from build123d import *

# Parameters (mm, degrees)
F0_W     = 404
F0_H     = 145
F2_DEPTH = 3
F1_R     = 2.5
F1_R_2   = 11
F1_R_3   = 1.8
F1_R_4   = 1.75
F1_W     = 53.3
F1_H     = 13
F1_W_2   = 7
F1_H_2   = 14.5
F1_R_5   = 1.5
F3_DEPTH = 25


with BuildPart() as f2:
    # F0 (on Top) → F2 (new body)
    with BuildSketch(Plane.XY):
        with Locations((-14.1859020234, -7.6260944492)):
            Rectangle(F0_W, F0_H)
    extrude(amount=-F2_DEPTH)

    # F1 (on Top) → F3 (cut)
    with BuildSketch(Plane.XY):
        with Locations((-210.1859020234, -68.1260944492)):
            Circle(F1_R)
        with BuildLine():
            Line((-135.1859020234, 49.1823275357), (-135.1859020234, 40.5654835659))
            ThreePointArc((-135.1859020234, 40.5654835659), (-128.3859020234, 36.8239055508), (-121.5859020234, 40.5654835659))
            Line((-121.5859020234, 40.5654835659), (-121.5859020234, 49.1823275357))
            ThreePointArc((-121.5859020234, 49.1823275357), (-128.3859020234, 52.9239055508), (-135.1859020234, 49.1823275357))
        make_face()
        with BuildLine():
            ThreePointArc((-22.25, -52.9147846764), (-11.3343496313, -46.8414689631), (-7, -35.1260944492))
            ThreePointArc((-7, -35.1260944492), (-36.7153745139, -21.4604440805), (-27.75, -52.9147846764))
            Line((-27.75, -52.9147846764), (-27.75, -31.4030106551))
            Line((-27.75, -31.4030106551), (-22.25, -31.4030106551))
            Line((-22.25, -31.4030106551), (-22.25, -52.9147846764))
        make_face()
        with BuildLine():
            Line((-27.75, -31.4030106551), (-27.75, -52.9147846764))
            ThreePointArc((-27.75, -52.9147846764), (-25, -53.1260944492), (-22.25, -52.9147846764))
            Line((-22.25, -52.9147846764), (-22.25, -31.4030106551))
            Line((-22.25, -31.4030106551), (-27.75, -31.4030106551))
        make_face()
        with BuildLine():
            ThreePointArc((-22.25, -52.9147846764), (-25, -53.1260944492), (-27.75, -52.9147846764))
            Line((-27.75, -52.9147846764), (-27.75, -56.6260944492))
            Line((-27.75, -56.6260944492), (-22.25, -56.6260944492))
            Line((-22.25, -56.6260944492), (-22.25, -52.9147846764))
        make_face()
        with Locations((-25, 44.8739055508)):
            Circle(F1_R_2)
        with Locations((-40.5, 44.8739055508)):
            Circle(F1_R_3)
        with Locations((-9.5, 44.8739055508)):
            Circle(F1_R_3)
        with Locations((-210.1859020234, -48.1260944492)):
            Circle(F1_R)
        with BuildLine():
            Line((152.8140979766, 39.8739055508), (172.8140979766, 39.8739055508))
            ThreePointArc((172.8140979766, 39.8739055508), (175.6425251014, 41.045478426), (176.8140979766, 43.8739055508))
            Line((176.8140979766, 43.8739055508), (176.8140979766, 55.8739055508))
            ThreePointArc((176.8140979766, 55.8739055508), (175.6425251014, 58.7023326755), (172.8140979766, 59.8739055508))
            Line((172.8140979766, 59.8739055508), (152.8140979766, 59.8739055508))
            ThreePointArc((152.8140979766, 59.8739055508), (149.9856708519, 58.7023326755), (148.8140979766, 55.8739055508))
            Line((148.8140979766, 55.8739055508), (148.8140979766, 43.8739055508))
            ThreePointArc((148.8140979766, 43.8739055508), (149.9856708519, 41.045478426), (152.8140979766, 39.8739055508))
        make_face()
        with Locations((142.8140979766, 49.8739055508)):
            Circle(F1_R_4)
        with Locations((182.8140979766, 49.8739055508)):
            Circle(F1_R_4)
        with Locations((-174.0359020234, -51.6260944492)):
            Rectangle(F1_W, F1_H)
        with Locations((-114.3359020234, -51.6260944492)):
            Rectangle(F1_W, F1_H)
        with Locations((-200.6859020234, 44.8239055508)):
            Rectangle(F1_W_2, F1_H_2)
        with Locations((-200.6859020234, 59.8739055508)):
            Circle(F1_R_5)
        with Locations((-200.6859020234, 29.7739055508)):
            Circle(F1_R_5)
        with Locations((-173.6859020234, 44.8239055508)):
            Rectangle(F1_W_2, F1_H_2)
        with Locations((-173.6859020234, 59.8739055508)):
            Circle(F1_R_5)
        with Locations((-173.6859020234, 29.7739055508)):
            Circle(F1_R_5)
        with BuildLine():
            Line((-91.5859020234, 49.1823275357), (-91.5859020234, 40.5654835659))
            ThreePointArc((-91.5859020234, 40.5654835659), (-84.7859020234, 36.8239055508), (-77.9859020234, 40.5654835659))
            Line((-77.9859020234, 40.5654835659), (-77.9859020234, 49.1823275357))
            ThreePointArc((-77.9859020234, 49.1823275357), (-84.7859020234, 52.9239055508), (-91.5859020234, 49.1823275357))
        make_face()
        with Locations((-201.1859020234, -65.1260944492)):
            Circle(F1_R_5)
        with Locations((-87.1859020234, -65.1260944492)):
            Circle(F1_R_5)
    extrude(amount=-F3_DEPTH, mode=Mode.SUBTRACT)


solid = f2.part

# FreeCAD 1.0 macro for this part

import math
import FreeCAD as App
import Part
import Sketcher

doc = App.newDocument("Part")
body = doc.addObject("PartDesign::Body", "Body")

sketch1 = body.newObject("Sketcher::SketchObject", "Sketch")
sketch1.AttachmentSupport = (doc.getObject("XY_Plane"), [""])
sketch1.MapMode = "FlatFace"
sketch1.addGeometry(Part.LineSegment(App.Vector(-216.185902, 64.873906, 0), App.Vector(-216.185902, -80.126094, 0)), False)
sketch1.addGeometry(Part.LineSegment(App.Vector(-216.185902, -80.126094, 0), App.Vector(187.814098, -80.126094, 0)), False)
sketch1.addGeometry(Part.LineSegment(App.Vector(187.814098, -80.126094, 0), App.Vector(187.814098, 64.873906, 0)), False)
sketch1.addGeometry(Part.LineSegment(App.Vector(187.814098, 64.873906, 0), App.Vector(-216.185902, 64.873906, 0)), False)
sketch1.addConstraint(Sketcher.Constraint("Coincident", 0, 2, 1, 1))
sketch1.addConstraint(Sketcher.Constraint("Coincident", 1, 2, 2, 1))
sketch1.addConstraint(Sketcher.Constraint("Coincident", 2, 2, 3, 1))
sketch1.addConstraint(Sketcher.Constraint("Coincident", 3, 2, 0, 1))
sketch1.addConstraint(Sketcher.Constraint("Vertical", 0))
sketch1.addConstraint(Sketcher.Constraint("Horizontal", 1))
sketch1.addConstraint(Sketcher.Constraint("Vertical", 2))
sketch1.addConstraint(Sketcher.Constraint("Horizontal", 3))
sketch1.addConstraint(Sketcher.Constraint("DistanceX", 1, 1, 1, 2, 404.0))
sketch1.addConstraint(Sketcher.Constraint("DistanceY", 0, 2, 0, 1, 145.0))
sketch1.addConstraint(Sketcher.Constraint("DistanceX", 0, 2, -1, 1, 216.185902))
sketch1.addConstraint(Sketcher.Constraint("DistanceY", 0, 2, -1, 1, 80.126094))
pad1 = body.newObject("PartDesign::Pad", "Pad")
pad1.Profile = sketch1
pad1.Length = 3
pad1.Reversed = True

sketch2 = body.newObject("Sketcher::SketchObject", "Sketch001")
sketch2.AttachmentSupport = (doc.getObject("XY_Plane"), [""])
sketch2.MapMode = "FlatFace"
sketch2.addGeometry(Part.Circle(App.Vector(-210.185902, -68.126094, 0), App.Vector(0, 0, 1), 2.5), False)
sketch2.addGeometry(Part.LineSegment(App.Vector(-135.185902, 49.182328, 0), App.Vector(-135.185902, 40.565484, 0)), False)
sketch2.addGeometry(Part.ArcOfCircle(Part.Circle(App.Vector(-128.385902, 44.873906, 0), App.Vector(0, 0, 1), 8.05), math.radians(-147.642002), math.radians(-32.357998)), False)
sketch2.addGeometry(Part.LineSegment(App.Vector(-121.585902, 40.565484, 0), App.Vector(-121.585902, 49.182328, 0)), False)
sketch2.addGeometry(Part.ArcOfCircle(Part.Circle(App.Vector(-128.385902, 44.873906, 0), App.Vector(0, 0, 1), 8.05), math.radians(32.357998), math.radians(147.642002)), False)
sketch2.addGeometry(Part.ArcOfCircle(Part.Circle(App.Vector(-25, -35.126094, 0), App.Vector(0, 0, 1), 18), math.radians(-81.212063), math.radians(0)), False)
sketch2.addGeometry(Part.ArcOfCircle(Part.Circle(App.Vector(-25, -35.126094, 0), App.Vector(0, 0, 1), 18), math.radians(0), math.radians(261.212063)), False)
sketch2.addGeometry(Part.LineSegment(App.Vector(-27.75, -52.914785, 0), App.Vector(-27.75, -56.626094, 0)), False)
sketch2.addGeometry(Part.LineSegment(App.Vector(-27.75, -56.626094, 0), App.Vector(-22.25, -56.626094, 0)), False)
sketch2.addGeometry(Part.LineSegment(App.Vector(-22.25, -56.626094, 0), App.Vector(-22.25, -52.914785, 0)), False)
sketch2.addGeometry(Part.Circle(App.Vector(-25, 44.873906, 0), App.Vector(0, 0, 1), 11), False)
sketch2.addGeometry(Part.Circle(App.Vector(-40.5, 44.873906, 0), App.Vector(0, 0, 1), 1.8), False)
sketch2.addGeometry(Part.Circle(App.Vector(-9.5, 44.873906, 0), App.Vector(0, 0, 1), 1.8), False)
sketch2.addGeometry(Part.Circle(App.Vector(-210.185902, -48.126094, 0), App.Vector(0, 0, 1), 2.5), False)
sketch2.addGeometry(Part.LineSegment(App.Vector(152.814098, 39.873906, 0), App.Vector(172.814098, 39.873906, 0)), False)
sketch2.addGeometry(Part.ArcOfCircle(Part.Circle(App.Vector(172.814098, 43.873906, 0), App.Vector(0, 0, 1), 4), math.radians(-90), math.radians(0)), False)
sketch2.addGeometry(Part.LineSegment(App.Vector(176.814098, 43.873906, 0), App.Vector(176.814098, 55.873906, 0)), False)
sketch2.addGeometry(Part.ArcOfCircle(Part.Circle(App.Vector(172.814098, 55.873906, 0), App.Vector(0, 0, 1), 4), math.radians(0), math.radians(90)), False)
sketch2.addGeometry(Part.LineSegment(App.Vector(172.814098, 59.873906, 0), App.Vector(152.814098, 59.873906, 0)), False)
sketch2.addGeometry(Part.ArcOfCircle(Part.Circle(App.Vector(152.814098, 55.873906, 0), App.Vector(0, 0, 1), 4), math.radians(90), math.radians(180)), False)
sketch2.addGeometry(Part.LineSegment(App.Vector(148.814098, 55.873906, 0), App.Vector(148.814098, 43.873906, 0)), False)
sketch2.addGeometry(Part.ArcOfCircle(Part.Circle(App.Vector(152.814098, 43.873906, 0), App.Vector(0, 0, 1), 4), math.radians(180), math.radians(270)), False)
sketch2.addGeometry(Part.Circle(App.Vector(142.814098, 49.873906, 0), App.Vector(0, 0, 1), 1.75), False)
sketch2.addGeometry(Part.Circle(App.Vector(182.814098, 49.873906, 0), App.Vector(0, 0, 1), 1.75), False)
sketch2.addGeometry(Part.LineSegment(App.Vector(-200.685902, -45.126094, 0), App.Vector(-200.685902, -58.126094, 0)), False)
sketch2.addGeometry(Part.LineSegment(App.Vector(-200.685902, -58.126094, 0), App.Vector(-147.385902, -58.126094, 0)), False)
sketch2.addGeometry(Part.LineSegment(App.Vector(-147.385902, -58.126094, 0), App.Vector(-147.385902, -45.126094, 0)), False)
sketch2.addGeometry(Part.LineSegment(App.Vector(-147.385902, -45.126094, 0), App.Vector(-200.685902, -45.126094, 0)), False)
sketch2.addGeometry(Part.LineSegment(App.Vector(-140.985902, -45.126094, 0), App.Vector(-140.985902, -58.126094, 0)), False)
sketch2.addGeometry(Part.LineSegment(App.Vector(-140.985902, -58.126094, 0), App.Vector(-87.685902, -58.126094, 0)), False)
sketch2.addGeometry(Part.LineSegment(App.Vector(-87.685902, -58.126094, 0), App.Vector(-87.685902, -45.126094, 0)), False)
sketch2.addGeometry(Part.LineSegment(App.Vector(-87.685902, -45.126094, 0), App.Vector(-140.985902, -45.126094, 0)), False)
sketch2.addGeometry(Part.LineSegment(App.Vector(-204.185902, 52.073906, 0), App.Vector(-204.185902, 37.573906, 0)), False)
sketch2.addGeometry(Part.LineSegment(App.Vector(-204.185902, 37.573906, 0), App.Vector(-197.185902, 37.573906, 0)), False)
sketch2.addGeometry(Part.LineSegment(App.Vector(-197.185902, 37.573906, 0), App.Vector(-197.185902, 52.073906, 0)), False)
sketch2.addGeometry(Part.LineSegment(App.Vector(-197.185902, 52.073906, 0), App.Vector(-204.185902, 52.073906, 0)), False)
sketch2.addGeometry(Part.Circle(App.Vector(-200.685902, 59.873906, 0), App.Vector(0, 0, 1), 1.5), False)
sketch2.addGeometry(Part.Circle(App.Vector(-200.685902, 29.773906, 0), App.Vector(0, 0, 1), 1.5), False)
sketch2.addGeometry(Part.LineSegment(App.Vector(-177.185902, 52.073906, 0), App.Vector(-177.185902, 37.573906, 0)), False)
sketch2.addGeometry(Part.LineSegment(App.Vector(-177.185902, 37.573906, 0), App.Vector(-170.185902, 37.573906, 0)), False)
sketch2.addGeometry(Part.LineSegment(App.Vector(-170.185902, 37.573906, 0), App.Vector(-170.185902, 52.073906, 0)), False)
sketch2.addGeometry(Part.LineSegment(App.Vector(-170.185902, 52.073906, 0), App.Vector(-177.185902, 52.073906, 0)), False)
sketch2.addGeometry(Part.Circle(App.Vector(-173.685902, 59.873906, 0), App.Vector(0, 0, 1), 1.5), False)
sketch2.addGeometry(Part.Circle(App.Vector(-173.685902, 29.773906, 0), App.Vector(0, 0, 1), 1.5), False)
sketch2.addGeometry(Part.LineSegment(App.Vector(-91.585902, 49.182328, 0), App.Vector(-91.585902, 40.565484, 0)), False)
sketch2.addGeometry(Part.ArcOfCircle(Part.Circle(App.Vector(-84.785902, 44.873906, 0), App.Vector(0, 0, 1), 8.05), math.radians(-147.642002), math.radians(-32.357998)), False)
sketch2.addGeometry(Part.LineSegment(App.Vector(-77.985902, 40.565484, 0), App.Vector(-77.985902, 49.182328, 0)), False)
sketch2.addGeometry(Part.ArcOfCircle(Part.Circle(App.Vector(-84.785902, 44.873906, 0), App.Vector(0, 0, 1), 8.05), math.radians(32.357998), math.radians(147.642002)), False)
sketch2.addGeometry(Part.Circle(App.Vector(-201.185902, -65.126094, 0), App.Vector(0, 0, 1), 1.5), False)
sketch2.addGeometry(Part.Circle(App.Vector(-87.185902, -65.126094, 0), App.Vector(0, 0, 1), 1.5), False)
sketch2.addConstraint(Sketcher.Constraint("Coincident", 1, 2, 2, 1))
sketch2.addConstraint(Sketcher.Constraint("Coincident", 2, 2, 3, 1))
sketch2.addConstraint(Sketcher.Constraint("Coincident", 3, 2, 4, 1))
sketch2.addConstraint(Sketcher.Constraint("Coincident", 4, 2, 1, 1))
sketch2.addConstraint(Sketcher.Constraint("Tangent", 5, 2, 6, 1))
sketch2.addConstraint(Sketcher.Constraint("Coincident", 6, 2, 7, 1))
sketch2.addConstraint(Sketcher.Constraint("Coincident", 7, 2, 8, 1))
sketch2.addConstraint(Sketcher.Constraint("Coincident", 8, 2, 9, 1))
sketch2.addConstraint(Sketcher.Constraint("Coincident", 9, 2, 5, 1))
sketch2.addConstraint(Sketcher.Constraint("Tangent", 14, 2, 15, 1))
sketch2.addConstraint(Sketcher.Constraint("Tangent", 15, 2, 16, 1))
sketch2.addConstraint(Sketcher.Constraint("Tangent", 16, 2, 17, 1))
sketch2.addConstraint(Sketcher.Constraint("Tangent", 17, 2, 18, 1))
sketch2.addConstraint(Sketcher.Constraint("Tangent", 18, 2, 19, 1))
sketch2.addConstraint(Sketcher.Constraint("Tangent", 19, 2, 20, 1))
sketch2.addConstraint(Sketcher.Constraint("Tangent", 20, 2, 21, 1))
sketch2.addConstraint(Sketcher.Constraint("Tangent", 21, 2, 14, 1))
sketch2.addConstraint(Sketcher.Constraint("Coincident", 24, 2, 25, 1))
sketch2.addConstraint(Sketcher.Constraint("Coincident", 25, 2, 26, 1))
sketch2.addConstraint(Sketcher.Constraint("Coincident", 26, 2, 27, 1))
sketch2.addConstraint(Sketcher.Constraint("Coincident", 27, 2, 24, 1))
sketch2.addConstraint(Sketcher.Constraint("Coincident", 28, 2, 29, 1))
sketch2.addConstraint(Sketcher.Constraint("Coincident", 29, 2, 30, 1))
sketch2.addConstraint(Sketcher.Constraint("Coincident", 30, 2, 31, 1))
sketch2.addConstraint(Sketcher.Constraint("Coincident", 31, 2, 28, 1))
sketch2.addConstraint(Sketcher.Constraint("Coincident", 32, 2, 33, 1))
sketch2.addConstraint(Sketcher.Constraint("Coincident", 33, 2, 34, 1))
sketch2.addConstraint(Sketcher.Constraint("Coincident", 34, 2, 35, 1))
sketch2.addConstraint(Sketcher.Constraint("Coincident", 35, 2, 32, 1))
sketch2.addConstraint(Sketcher.Constraint("Coincident", 38, 2, 39, 1))
sketch2.addConstraint(Sketcher.Constraint("Coincident", 39, 2, 40, 1))
sketch2.addConstraint(Sketcher.Constraint("Coincident", 40, 2, 41, 1))
sketch2.addConstraint(Sketcher.Constraint("Coincident", 41, 2, 38, 1))
sketch2.addConstraint(Sketcher.Constraint("Coincident", 44, 2, 45, 1))
sketch2.addConstraint(Sketcher.Constraint("Coincident", 45, 2, 46, 1))
sketch2.addConstraint(Sketcher.Constraint("Coincident", 46, 2, 47, 1))
sketch2.addConstraint(Sketcher.Constraint("Coincident", 47, 2, 44, 1))
sketch2.addConstraint(Sketcher.Constraint("Vertical", 1))
sketch2.addConstraint(Sketcher.Constraint("Vertical", 3))
sketch2.addConstraint(Sketcher.Constraint("Vertical", 7))
sketch2.addConstraint(Sketcher.Constraint("Horizontal", 8))
sketch2.addConstraint(Sketcher.Constraint("Vertical", 9))
sketch2.addConstraint(Sketcher.Constraint("Horizontal", 14))
sketch2.addConstraint(Sketcher.Constraint("Vertical", 16))
sketch2.addConstraint(Sketcher.Constraint("Horizontal", 18))
sketch2.addConstraint(Sketcher.Constraint("Vertical", 20))
sketch2.addConstraint(Sketcher.Constraint("Vertical", 24))
sketch2.addConstraint(Sketcher.Constraint("Horizontal", 25))
sketch2.addConstraint(Sketcher.Constraint("Vertical", 26))
sketch2.addConstraint(Sketcher.Constraint("Horizontal", 27))
sketch2.addConstraint(Sketcher.Constraint("Vertical", 28))
sketch2.addConstraint(Sketcher.Constraint("Horizontal", 29))
sketch2.addConstraint(Sketcher.Constraint("Vertical", 30))
sketch2.addConstraint(Sketcher.Constraint("Horizontal", 31))
sketch2.addConstraint(Sketcher.Constraint("Vertical", 32))
sketch2.addConstraint(Sketcher.Constraint("Horizontal", 33))
sketch2.addConstraint(Sketcher.Constraint("Vertical", 34))
sketch2.addConstraint(Sketcher.Constraint("Horizontal", 35))
sketch2.addConstraint(Sketcher.Constraint("Vertical", 38))
sketch2.addConstraint(Sketcher.Constraint("Horizontal", 39))
sketch2.addConstraint(Sketcher.Constraint("Vertical", 40))
sketch2.addConstraint(Sketcher.Constraint("Horizontal", 41))
sketch2.addConstraint(Sketcher.Constraint("Vertical", 44))
sketch2.addConstraint(Sketcher.Constraint("Vertical", 46))
sketch2.addConstraint(Sketcher.Constraint("Coincident", 4, 3, 2, 3))
sketch2.addConstraint(Sketcher.Constraint("Coincident", 47, 3, 45, 3))
sketch2.addConstraint(Sketcher.Constraint("Equal", 2, 4))
sketch2.addConstraint(Sketcher.Constraint("Equal", 5, 6))
sketch2.addConstraint(Sketcher.Constraint("Equal", 11, 12))
sketch2.addConstraint(Sketcher.Constraint("Equal", 0, 13))
sketch2.addConstraint(Sketcher.Constraint("Equal", 15, 17))
sketch2.addConstraint(Sketcher.Constraint("Equal", 17, 19))
sketch2.addConstraint(Sketcher.Constraint("Equal", 19, 21))
sketch2.addConstraint(Sketcher.Constraint("Equal", 22, 23))
sketch2.addConstraint(Sketcher.Constraint("Equal", 36, 37))
sketch2.addConstraint(Sketcher.Constraint("Equal", 37, 42))
sketch2.addConstraint(Sketcher.Constraint("Equal", 42, 43))
sketch2.addConstraint(Sketcher.Constraint("Equal", 4, 45))
sketch2.addConstraint(Sketcher.Constraint("Equal", 45, 47))
sketch2.addConstraint(Sketcher.Constraint("Equal", 43, 48))
sketch2.addConstraint(Sketcher.Constraint("Equal", 48, 49))
sketch2.addConstraint(Sketcher.Constraint("Horizontal", 4, 3, 10, 3))
sketch2.addConstraint(Sketcher.Constraint("Horizontal", 10, 3, 11, 3))
sketch2.addConstraint(Sketcher.Constraint("Horizontal", 11, 3, 12, 3))
sketch2.addConstraint(Sketcher.Constraint("Horizontal", 22, 3, 23, 3))
sketch2.addConstraint(Sketcher.Constraint("Horizontal", 36, 3, 42, 3))
sketch2.addConstraint(Sketcher.Constraint("Horizontal", 37, 3, 43, 3))
sketch2.addConstraint(Sketcher.Constraint("Horizontal", 12, 3, 45, 3))
sketch2.addConstraint(Sketcher.Constraint("Horizontal", 48, 3, 49, 3))
sketch2.addConstraint(Sketcher.Constraint("Horizontal", 1, 2, 2, 2))
sketch2.addConstraint(Sketcher.Constraint("Horizontal", 6, 3, 5, 2))
sketch2.addConstraint(Sketcher.Constraint("Horizontal", 6, 2, 9, 2))
sketch2.addConstraint(Sketcher.Constraint("Horizontal", 42, 3, 17, 2))
sketch2.addConstraint(Sketcher.Constraint("Horizontal", 25, 2, 28, 2))
sketch2.addConstraint(Sketcher.Constraint("Horizontal", 27, 2, 30, 2))
sketch2.addConstraint(Sketcher.Constraint("Horizontal", 33, 2, 38, 2))
sketch2.addConstraint(Sketcher.Constraint("Horizontal", 35, 2, 40, 2))
sketch2.addConstraint(Sketcher.Constraint("Horizontal", 2, 2, 44, 2))
sketch2.addConstraint(Sketcher.Constraint("Horizontal", 44, 2, 45, 2))
sketch2.addConstraint(Sketcher.Constraint("Vertical", 6, 3, 10, 3))
sketch2.addConstraint(Sketcher.Constraint("Vertical", 0, 3, 13, 3))
sketch2.addConstraint(Sketcher.Constraint("Vertical", 36, 3, 37, 3))
sketch2.addConstraint(Sketcher.Constraint("Vertical", 42, 3, 43, 3))
sketch2.addConstraint(Sketcher.Constraint("Vertical", 37, 3, 24, 2))
sketch2.addConstraint(Sketcher.Constraint("Equal", 27, 29))
sketch2.addConstraint(Sketcher.Constraint("Equal", 35, 39))
sketch2.addConstraint(Sketcher.Constraint("Diameter", 0, 5.0))
sketch2.addConstraint(Sketcher.Constraint("Diameter", 10, 22.0))
sketch2.addConstraint(Sketcher.Constraint("Diameter", 36, 3.0))
sketch2.addConstraint(Sketcher.Constraint("Radius", 5, 18.0))
sketch2.addConstraint(Sketcher.Constraint("Radius", 15, 4.0))
sketch2.addConstraint(Sketcher.Constraint("Diameter", 11, 3.6))
sketch2.addConstraint(Sketcher.Constraint("Diameter", 22, 3.5))
sketch2.addConstraint(Sketcher.Constraint("DistanceX", 14, 1, 14, 2, 20.0))
sketch2.addConstraint(Sketcher.Constraint("DistanceX", 33, 1, 33, 2, 7.0))
sketch2.addConstraint(Sketcher.Constraint("DistanceY", 16, 1, 16, 2, 12.0))
sketch2.addConstraint(Sketcher.Constraint("DistanceY", 24, 2, 24, 1, 13.0))
sketch2.addConstraint(Sketcher.Constraint("Radius", 2, 8.05))
sketch2.addConstraint(Sketcher.Constraint("DistanceX", 8, 1, 8, 2, 5.5))
sketch2.addConstraint(Sketcher.Constraint("DistanceX", 25, 1, 25, 2, 53.3))
sketch2.addConstraint(Sketcher.Constraint("DistanceY", 32, 2, 32, 1, 14.5))
sketch2.addConstraint(Sketcher.Constraint("DistanceX", 5, 3, -1, 1, 25.0))
sketch2.addConstraint(Sketcher.Constraint("DistanceY", 0, 3, 2, 3, 113.0))
sketch2.addConstraint(Sketcher.Constraint("DistanceY", 5, 3, 2, 3, 80.0))
sketch2.addConstraint(Sketcher.Constraint("DistanceX", 11, 3, 12, 3, 31.0))
sketch2.addConstraint(Sketcher.Constraint("DistanceY", 0, 3, 13, 3, 20.0))
sketch2.addConstraint(Sketcher.Constraint("DistanceY", 15, 3, 12, 3, 1.0))
sketch2.addConstraint(Sketcher.Constraint("DistanceX", 22, 3, 19, 3, 10.0))
sketch2.addConstraint(Sketcher.Constraint("DistanceY", 22, 3, 19, 3, 6.0))
sketch2.addConstraint(Sketcher.Constraint("DistanceX", 15, 3, 23, 3, 10.0))
sketch2.addConstraint(Sketcher.Constraint("DistanceX", 36, 3, 42, 3, 27.0))
sketch2.addConstraint(Sketcher.Constraint("DistanceX", 0, 3, 48, 3, 9.0))
sketch2.addConstraint(Sketcher.Constraint("DistanceY", 0, 3, 48, 3, 3.0))
sketch2.addConstraint(Sketcher.Constraint("DistanceX", 48, 3, 49, 3, 114.0))
sketch2.addConstraint(Sketcher.Constraint("DistanceY", 48, 3, 24, 2, 7.0))
sketch2.addConstraint(Sketcher.Constraint("DistanceX", 32, 2, 1, 2, 69.0))
sketch2.addConstraint(Sketcher.Constraint("DistanceX", 33, 2, 38, 2, 20.0))
sketch2.addConstraint(Sketcher.Constraint("DistanceX", 2, 2, 44, 2, 30.0))
sketch2.addConstraint(Sketcher.Constraint("DistanceX", 11, 3, -1, 1, 40.5))
sketch2.addConstraint(Sketcher.Constraint("DistanceX", 0, 3, 2, 3, 81.8))
sketch2.addConstraint(Sketcher.Constraint("DistanceX", 36, 3, 2, 3, 72.3))
sketch2.addConstraint(Sketcher.Constraint("DistanceY", 37, 3, 36, 3, 30.1))
sketch2.addConstraint(Sketcher.Constraint("DistanceX", 2, 3, 45, 3, 43.6))
sketch2.addConstraint(Sketcher.Constraint("DistanceY", 7, 2, 5, 3, 21.5))
sketch2.addConstraint(Sketcher.Constraint("DistanceX", 25, 2, 28, 2, 6.4))
sketch2.addConstraint(Sketcher.Constraint("DistanceY", 37, 3, 32, 2, 7.8))
sketch2.addConstraint(Sketcher.Constraint("DistanceX", 0, 3, -1, 1, 210.185902))
sketch2.addConstraint(Sketcher.Constraint("DistanceY", 0, 3, -1, 1, 68.126094))
sketch2.addConstraint(Sketcher.Constraint("DistanceX", -1, 1, 15, 3, 172.814098))
pocket1 = body.newObject("PartDesign::Pocket", "Pocket")
pocket1.Profile = sketch2
pocket1.Length = 25

doc.recompute()
